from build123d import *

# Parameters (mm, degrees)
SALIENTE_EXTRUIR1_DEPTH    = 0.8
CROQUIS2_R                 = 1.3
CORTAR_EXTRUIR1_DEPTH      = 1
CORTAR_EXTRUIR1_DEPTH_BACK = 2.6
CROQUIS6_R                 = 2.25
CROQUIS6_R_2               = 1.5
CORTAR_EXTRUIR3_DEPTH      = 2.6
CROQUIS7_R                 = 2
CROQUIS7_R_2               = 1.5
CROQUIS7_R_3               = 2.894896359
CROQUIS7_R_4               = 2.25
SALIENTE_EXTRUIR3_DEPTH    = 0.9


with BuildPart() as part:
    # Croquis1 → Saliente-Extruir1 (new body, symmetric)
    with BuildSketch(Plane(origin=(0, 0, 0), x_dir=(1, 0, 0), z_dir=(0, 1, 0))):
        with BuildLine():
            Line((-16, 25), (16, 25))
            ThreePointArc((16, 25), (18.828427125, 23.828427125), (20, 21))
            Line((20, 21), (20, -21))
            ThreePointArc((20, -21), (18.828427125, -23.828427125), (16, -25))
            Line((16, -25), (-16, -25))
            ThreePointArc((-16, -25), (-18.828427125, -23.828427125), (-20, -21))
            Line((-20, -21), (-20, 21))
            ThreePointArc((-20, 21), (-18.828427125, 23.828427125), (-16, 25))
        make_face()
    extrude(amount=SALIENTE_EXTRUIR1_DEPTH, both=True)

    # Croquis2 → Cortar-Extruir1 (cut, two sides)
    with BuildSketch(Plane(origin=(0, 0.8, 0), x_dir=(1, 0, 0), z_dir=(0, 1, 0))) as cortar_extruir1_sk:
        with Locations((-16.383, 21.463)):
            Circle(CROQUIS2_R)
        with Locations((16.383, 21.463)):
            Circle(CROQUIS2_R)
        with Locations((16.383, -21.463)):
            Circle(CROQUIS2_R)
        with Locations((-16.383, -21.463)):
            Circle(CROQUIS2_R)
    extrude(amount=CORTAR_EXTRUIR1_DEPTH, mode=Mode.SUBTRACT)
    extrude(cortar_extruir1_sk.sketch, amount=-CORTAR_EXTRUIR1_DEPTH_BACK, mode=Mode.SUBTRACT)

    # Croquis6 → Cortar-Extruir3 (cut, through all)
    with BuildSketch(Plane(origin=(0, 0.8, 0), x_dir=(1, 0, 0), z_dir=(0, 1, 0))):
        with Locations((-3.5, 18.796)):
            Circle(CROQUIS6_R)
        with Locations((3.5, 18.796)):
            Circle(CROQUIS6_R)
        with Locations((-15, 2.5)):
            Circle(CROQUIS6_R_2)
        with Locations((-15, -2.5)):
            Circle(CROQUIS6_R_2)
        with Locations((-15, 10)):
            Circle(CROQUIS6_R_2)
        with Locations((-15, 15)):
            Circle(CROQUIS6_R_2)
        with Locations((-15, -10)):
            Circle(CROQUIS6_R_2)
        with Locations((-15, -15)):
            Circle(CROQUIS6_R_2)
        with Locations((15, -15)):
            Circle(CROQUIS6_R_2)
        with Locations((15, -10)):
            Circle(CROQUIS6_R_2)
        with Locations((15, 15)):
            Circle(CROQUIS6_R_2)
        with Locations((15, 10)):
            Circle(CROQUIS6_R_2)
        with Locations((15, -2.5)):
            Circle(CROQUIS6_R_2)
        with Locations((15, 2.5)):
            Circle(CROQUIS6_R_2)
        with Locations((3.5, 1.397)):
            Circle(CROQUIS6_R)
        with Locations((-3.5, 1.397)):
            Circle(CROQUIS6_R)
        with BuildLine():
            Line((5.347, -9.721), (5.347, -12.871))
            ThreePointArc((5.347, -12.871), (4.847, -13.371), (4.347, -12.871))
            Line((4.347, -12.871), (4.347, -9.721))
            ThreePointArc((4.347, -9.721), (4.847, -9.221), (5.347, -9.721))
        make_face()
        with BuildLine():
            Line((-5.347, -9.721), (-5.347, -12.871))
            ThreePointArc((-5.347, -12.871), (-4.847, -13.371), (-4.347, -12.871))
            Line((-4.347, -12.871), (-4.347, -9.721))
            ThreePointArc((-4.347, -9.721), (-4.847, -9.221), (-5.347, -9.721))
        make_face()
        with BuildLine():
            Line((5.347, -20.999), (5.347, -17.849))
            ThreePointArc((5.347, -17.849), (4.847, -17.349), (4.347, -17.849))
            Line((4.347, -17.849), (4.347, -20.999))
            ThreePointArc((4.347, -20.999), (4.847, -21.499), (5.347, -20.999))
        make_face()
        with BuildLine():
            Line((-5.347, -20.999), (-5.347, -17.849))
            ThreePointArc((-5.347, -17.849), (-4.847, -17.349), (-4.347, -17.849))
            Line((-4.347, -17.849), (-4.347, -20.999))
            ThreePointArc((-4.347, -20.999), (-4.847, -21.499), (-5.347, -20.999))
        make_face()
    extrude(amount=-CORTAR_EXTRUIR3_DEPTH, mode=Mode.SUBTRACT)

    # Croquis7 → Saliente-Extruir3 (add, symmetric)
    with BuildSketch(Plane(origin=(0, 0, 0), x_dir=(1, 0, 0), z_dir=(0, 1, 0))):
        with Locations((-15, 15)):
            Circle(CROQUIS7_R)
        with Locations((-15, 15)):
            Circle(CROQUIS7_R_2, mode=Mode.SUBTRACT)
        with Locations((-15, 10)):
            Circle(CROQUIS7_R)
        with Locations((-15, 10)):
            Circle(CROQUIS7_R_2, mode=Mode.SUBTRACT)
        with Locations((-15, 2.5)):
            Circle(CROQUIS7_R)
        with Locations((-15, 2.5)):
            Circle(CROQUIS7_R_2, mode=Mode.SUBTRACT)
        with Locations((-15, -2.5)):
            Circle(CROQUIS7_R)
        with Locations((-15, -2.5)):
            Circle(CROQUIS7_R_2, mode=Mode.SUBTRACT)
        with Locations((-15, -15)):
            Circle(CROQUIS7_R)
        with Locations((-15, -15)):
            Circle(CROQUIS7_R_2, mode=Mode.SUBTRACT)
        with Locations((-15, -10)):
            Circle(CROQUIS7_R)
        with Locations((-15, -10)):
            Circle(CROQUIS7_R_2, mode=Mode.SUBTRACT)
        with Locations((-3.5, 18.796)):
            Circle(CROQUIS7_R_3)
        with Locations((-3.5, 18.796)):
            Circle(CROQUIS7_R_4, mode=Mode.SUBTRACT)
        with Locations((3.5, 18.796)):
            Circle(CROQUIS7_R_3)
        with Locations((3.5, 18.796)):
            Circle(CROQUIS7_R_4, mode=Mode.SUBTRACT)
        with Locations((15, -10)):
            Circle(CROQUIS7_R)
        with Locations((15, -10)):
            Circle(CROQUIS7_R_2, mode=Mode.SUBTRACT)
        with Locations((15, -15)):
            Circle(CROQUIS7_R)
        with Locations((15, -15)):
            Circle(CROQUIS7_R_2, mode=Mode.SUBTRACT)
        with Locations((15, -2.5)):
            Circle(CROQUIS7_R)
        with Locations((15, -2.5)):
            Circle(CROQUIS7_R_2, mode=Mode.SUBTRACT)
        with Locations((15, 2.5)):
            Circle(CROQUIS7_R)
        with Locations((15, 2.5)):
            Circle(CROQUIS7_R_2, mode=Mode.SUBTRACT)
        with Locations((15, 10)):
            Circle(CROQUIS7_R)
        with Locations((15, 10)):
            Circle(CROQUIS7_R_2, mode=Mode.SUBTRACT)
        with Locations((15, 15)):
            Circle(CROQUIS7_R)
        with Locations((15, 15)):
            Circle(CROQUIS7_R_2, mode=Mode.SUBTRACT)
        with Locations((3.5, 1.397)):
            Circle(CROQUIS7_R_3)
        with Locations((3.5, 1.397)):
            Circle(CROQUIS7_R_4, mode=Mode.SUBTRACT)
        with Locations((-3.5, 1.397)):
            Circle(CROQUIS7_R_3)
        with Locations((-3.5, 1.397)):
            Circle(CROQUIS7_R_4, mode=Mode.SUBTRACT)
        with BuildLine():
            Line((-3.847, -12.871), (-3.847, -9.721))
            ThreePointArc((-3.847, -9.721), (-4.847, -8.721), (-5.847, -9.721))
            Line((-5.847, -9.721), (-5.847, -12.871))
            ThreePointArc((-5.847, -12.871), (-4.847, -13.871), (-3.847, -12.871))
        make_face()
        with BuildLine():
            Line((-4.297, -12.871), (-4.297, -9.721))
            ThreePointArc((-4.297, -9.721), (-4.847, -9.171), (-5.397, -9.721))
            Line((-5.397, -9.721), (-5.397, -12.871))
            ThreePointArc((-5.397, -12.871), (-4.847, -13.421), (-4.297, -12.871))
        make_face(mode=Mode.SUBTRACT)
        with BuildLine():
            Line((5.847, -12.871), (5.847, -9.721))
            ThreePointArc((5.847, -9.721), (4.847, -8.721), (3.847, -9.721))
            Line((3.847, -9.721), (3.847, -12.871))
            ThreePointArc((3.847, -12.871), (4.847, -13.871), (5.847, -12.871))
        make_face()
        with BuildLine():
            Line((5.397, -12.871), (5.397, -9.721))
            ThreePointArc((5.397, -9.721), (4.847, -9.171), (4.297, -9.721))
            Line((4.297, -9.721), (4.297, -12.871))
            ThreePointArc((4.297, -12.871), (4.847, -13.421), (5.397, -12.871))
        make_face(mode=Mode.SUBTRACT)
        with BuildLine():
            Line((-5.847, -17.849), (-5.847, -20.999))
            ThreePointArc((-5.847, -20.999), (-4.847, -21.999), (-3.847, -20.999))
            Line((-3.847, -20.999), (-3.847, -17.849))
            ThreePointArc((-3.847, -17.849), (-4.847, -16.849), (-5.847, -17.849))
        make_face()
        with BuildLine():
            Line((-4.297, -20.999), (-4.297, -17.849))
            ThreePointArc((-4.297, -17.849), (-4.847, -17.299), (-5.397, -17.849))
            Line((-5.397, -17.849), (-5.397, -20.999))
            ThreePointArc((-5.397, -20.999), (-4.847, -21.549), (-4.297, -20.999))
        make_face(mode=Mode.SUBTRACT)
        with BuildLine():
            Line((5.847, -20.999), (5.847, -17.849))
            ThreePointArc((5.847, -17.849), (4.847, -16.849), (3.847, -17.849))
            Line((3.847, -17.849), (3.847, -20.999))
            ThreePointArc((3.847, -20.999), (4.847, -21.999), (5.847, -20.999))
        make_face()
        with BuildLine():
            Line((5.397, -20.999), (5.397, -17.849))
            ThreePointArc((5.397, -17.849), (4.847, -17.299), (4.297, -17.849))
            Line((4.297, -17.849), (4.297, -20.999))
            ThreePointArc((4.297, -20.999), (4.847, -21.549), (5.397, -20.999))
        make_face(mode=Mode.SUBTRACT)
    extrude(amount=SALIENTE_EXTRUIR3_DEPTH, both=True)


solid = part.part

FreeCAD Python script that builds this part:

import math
import FreeCAD as App
import Part
import Sketcher

V = App.Vector

doc = App.newDocument("Part")
body = doc.addObject("PartDesign::Body", "Body")

sketch1 = body.newObject("Sketcher::SketchObject", "Sketch")
sketch1.AttachmentSupport = (doc.getObject("XZ_Plane"), [""])
sketch1.MapMode = "FlatFace"
sketch1.addGeometry(Part.LineSegment(V(16, -25, 0), V(-16, -25, 0)), False)
sketch1.addGeometry(Part.ArcOfCircle(Part.Circle(V(-16, -21, 0), V(0, 0, 1), 4), math.radians(180), math.radians(270)), False)
sketch1.addGeometry(Part.LineSegment(V(-20, -21, 0), V(-20, 21, 0)), False)
sketch1.addGeometry(Part.ArcOfCircle(Part.Circle(V(-16, 21, 0), V(0, 0, 1), 4), math.radians(90), math.radians(180)), False)
sketch1.addGeometry(Part.LineSegment(V(-16, 25, 0), V(16, 25, 0)), False)
sketch1.addGeometry(Part.ArcOfCircle(Part.Circle(V(16, 21, 0), V(0, 0, 1), 4), math.radians(0), math.radians(90)), False)
sketch1.addGeometry(Part.LineSegment(V(20, 21, 0), V(20, -21, 0)), False)
sketch1.addGeometry(Part.ArcOfCircle(Part.Circle(V(16, -21, 0), V(0, 0, 1), 4), math.radians(-90), math.radians(0)), False)
sketch1.addConstraint(Sketcher.Constraint("Tangent", 0, 2, 1, 2))
sketch1.addConstraint(Sketcher.Constraint("Tangent", 1, 1, 2, 1))
sketch1.addConstraint(Sketcher.Constraint("Tangent", 2, 2, 3, 2))
sketch1.addConstraint(Sketcher.Constraint("Tangent", 3, 1, 4, 1))
sketch1.addConstraint(Sketcher.Constraint("Tangent", 4, 2, 5, 2))
sketch1.addConstraint(Sketcher.Constraint("Tangent", 5, 1, 6, 1))
sketch1.addConstraint(Sketcher.Constraint("Tangent", 6, 2, 7, 2))
sketch1.addConstraint(Sketcher.Constraint("Tangent", 7, 1, 0, 1))
sketch1.addConstraint(Sketcher.Constraint("Horizontal", 0))
sketch1.addConstraint(Sketcher.Constraint("Vertical", 2))
sketch1.addConstraint(Sketcher.Constraint("Horizontal", 4))
sketch1.addConstraint(Sketcher.Constraint("Vertical", 6))
sketch1.addConstraint(Sketcher.Constraint("Equal", 1, 3))
sketch1.addConstraint(Sketcher.Constraint("Equal", 3, 5))
sketch1.addConstraint(Sketcher.Constraint("Equal", 5, 7))
sketch1.addConstraint(Sketcher.Constraint("Symmetric", 1, 3, 5, 3, -1, 1))
sketch1.addConstraint(Sketcher.Constraint("Radius", 1, 4.0))
sketch1.addConstraint(Sketcher.Constraint("DistanceX", 0, 2, 0, 1, 32.0))
sketch1.addConstraint(Sketcher.Constraint("DistanceY", 2, 1, 2, 2, 42.0))
pad1 = body.newObject("PartDesign::Pad", "Pad")
pad1.Profile = sketch1
pad1.Length = 1.6
pad1.Midplane = True

sketch2 = body.newObject("Sketcher::SketchObject", "Sketch001")
sketch2.AttachmentSupport = (doc.getObject("XZ_Plane"), [""])
sketch2.MapMode = "FlatFace"
sketch2.AttachmentOffset = App.Placement(V(0, 0, -0.8), App.Rotation())
sketch2.addGeometry(Part.Circle(V(-16.383, -21.463, 0), V(0, 0, 1), 1.3), False)
sketch2.addGeometry(Part.Circle(V(16.383, -21.463, 0), V(0, 0, 1), 1.3), False)
sketch2.addGeometry(Part.Circle(V(16.383, 21.463, 0), V(0, 0, 1), 1.3), False)
sketch2.addGeometry(Part.Circle(V(-16.383, 21.463, 0), V(0, 0, 1), 1.3), False)
sketch2.addConstraint(Sketcher.Constraint("Equal", 0, 1))
sketch2.addConstraint(Sketcher.Constraint("Equal", 1, 2))
sketch2.addConstraint(Sketcher.Constraint("Equal", 2, 3))
sketch2.addConstraint(Sketcher.Constraint("Symmetric", 0, 3, 2, 3, -1, 1))
sketch2.addConstraint(Sketcher.Constraint("Symmetric", 1, 3, 3, 3, -1, 1))
sketch2.addConstraint(Sketcher.Constraint("Symmetric", 0, 3, 1, 3, -2))
sketch2.addConstraint(Sketcher.Constraint("Diameter", 0, 2.6))
sketch2.addConstraint(Sketcher.Constraint("DistanceX", 0, 3, -1, 1, 16.383))
sketch2.addConstraint(Sketcher.Constraint("DistanceY", 0, 3, -1, 1, 21.463))
pocket1 = body.newObject("PartDesign::Pocket", "Pocket")
pocket1.Profile = sketch2
pocket1.Type = "ThroughAll"
pocket1.Midplane = True

sketch3 = body.newObject("Sketcher::SketchObject", "Sketch002")
sketch3.AttachmentSupport = (doc.getObject("XZ_Plane"), [""])
sketch3.MapMode = "FlatFace"
sketch3.AttachmentOffset = App.Placement(V(0, 0, -0.8), App.Rotation())
sketch3.addGeometry(Part.Circle(V(-3.5, -18.796, 0), V(0, 0, 1), 2.25), False)
sketch3.addGeometry(Part.Circle(V(3.5, -18.796, 0), V(0, 0, 1), 2.25), False)
sketch3.addGeometry(Part.Circle(V(-15, -2.5, 0), V(0, 0, 1), 1.5), False)
sketch3.addGeometry(Part.Circle(V(-15, 2.5, 0), V(0, 0, 1), 1.5), False)
sketch3.addGeometry(Part.Circle(V(-15, -10, 0), V(0, 0, 1), 1.5), False)
sketch3.addGeometry(Part.Circle(V(-15, -15, 0), V(0, 0, 1), 1.5), False)
sketch3.addGeometry(Part.Circle(V(-15, 10, 0), V(0, 0, 1), 1.5), False)
sketch3.addGeometry(Part.Circle(V(-15, 15, 0), V(0, 0, 1), 1.5), False)
sketch3.addGeometry(Part.Circle(V(15, 15, 0), V(0, 0, 1), 1.5), False)
sketch3.addGeometry(Part.Circle(V(15, 10, 0), V(0, 0, 1), 1.5), False)
sketch3.addGeometry(Part.Circle(V(15, -15, 0), V(0, 0, 1), 1.5), False)
sketch3.addGeometry(Part.Circle(V(15, -10, 0), V(0, 0, 1), 1.5), False)
sketch3.addGeometry(Part.Circle(V(15, 2.5, 0), V(0, 0, 1), 1.5), False)
sketch3.addGeometry(Part.Circle(V(15, -2.5, 0), V(0, 0, 1), 1.5), False)
sketch3.addGeometry(Part.Circle(V(3.5, -1.397, 0), V(0, 0, 1), 2.25), False)
sketch3.addGeometry(Part.Circle(V(-3.5, -1.397, 0), V(0, 0, 1), 2.25), False)
sketch3.addGeometry(Part.LineSegment(V(5.347, 12.871, 0), V(5.347, 9.721, 0)), False)
sketch3.addGeometry(Part.ArcOfCircle(Part.Circle(V(4.847, 9.721, 0), V(0, 0, 1), 0.5), math.radians(180), math.radians(360)), False)
sketch3.addGeometry(Part.LineSegment(V(4.347, 9.721, 0), V(4.347, 12.871, 0)), False)
sketch3.addGeometry(Part.ArcOfCircle(Part.Circle(V(4.847, 12.871, 0), V(0, 0, 1), 0.5), math.radians(0), math.radians(180)), False)
sketch3.addGeometry(Part.LineSegment(V(-5.347, 9.721, 0), V(-5.347, 12.871, 0)), False)
sketch3.addGeometry(Part.ArcOfCircle(Part.Circle(V(-4.847, 12.871, 0), V(0, 0, 1), 0.5), math.radians(0), math.radians(180)), False)
sketch3.addGeometry(Part.LineSegment(V(-4.347, 12.871, 0), V(-4.347, 9.721, 0)), False)
sketch3.addGeometry(Part.ArcOfCircle(Part.Circle(V(-4.847, 9.721, 0), V(0, 0, 1), 0.5), math.radians(180), math.radians(360)), False)
sketch3.addGeometry(Part.LineSegment(V(5.347, 20.999, 0), V(5.347, 17.849, 0)), False)
sketch3.addGeometry(Part.ArcOfCircle(Part.Circle(V(4.847, 17.849, 0), V(0, 0, 1), 0.5), math.radians(180), math.radians(360)), False)
sketch3.addGeometry(Part.LineSegment(V(4.347, 17.849, 0), V(4.347, 20.999, 0)), False)
sketch3.addGeometry(Part.ArcOfCircle(Part.Circle(V(4.847, 20.999, 0), V(0, 0, 1), 0.5), math.radians(0), math.radians(180)), False)
sketch3.addGeometry(Part.LineSegment(V(-5.347, 17.849, 0), V(-5.347, 20.999, 0)), False)
sketch3.addGeometry(Part.ArcOfCircle(Part.Circle(V(-4.847, 20.999, 0), V(0, 0, 1), 0.5), math.radians(0), math.radians(180)), False)
sketch3.addGeometry(Part.LineSegment(V(-4.347, 20.999, 0), V(-4.347, 17.849, 0)), False)
sketch3.addGeometry(Part.ArcOfCircle(Part.Circle(V(-4.847, 17.849, 0), V(0, 0, 1), 0.5), math.radians(180), math.radians(360)), False)
sketch3.addConstraint(Sketcher.Constraint("Tangent", 16, 2, 17, 2))
sketch3.addConstraint(Sketcher.Constraint("Tangent", 17, 1, 18, 1))
sketch3.addConstraint(Sketcher.Constraint("Tangent", 18, 2, 19, 2))
sketch3.addConstraint(Sketcher.Constraint("Tangent", 19, 1, 16, 1))
sketch3.addConstraint(Sketcher.Constraint("Tangent", 20, 2, 21, 2))
sketch3.addConstraint(Sketcher.Constraint("Tangent", 21, 1, 22, 1))
sketch3.addConstraint(Sketcher.Constraint("Tangent", 22, 2, 23, 2))
sketch3.addConstraint(Sketcher.Constraint("Tangent", 23, 1, 20, 1))
sketch3.addConstraint(Sketcher.Constraint("Tangent", 24, 2, 25, 2))
sketch3.addConstraint(Sketcher.Constraint("Tangent", 25, 1, 26, 1))
sketch3.addConstraint(Sketcher.Constraint("Tangent", 26, 2, 27, 2))
sketch3.addConstraint(Sketcher.Constraint("Tangent", 27, 1, 24, 1))
sketch3.addConstraint(Sketcher.Constraint("Tangent", 28, 2, 29, 2))
sketch3.addConstraint(Sketcher.Constraint("Tangent", 29, 1, 30, 1))
sketch3.addConstraint(Sketcher.Constraint("Tangent", 30, 2, 31, 2))
sketch3.addConstraint(Sketcher.Constraint("Tangent", 31, 1, 28, 1))
sketch3.addConstraint(Sketcher.Constraint("Vertical", 16))
sketch3.addConstraint(Sketcher.Constraint("Vertical", 18))
sketch3.addConstraint(Sketcher.Constraint("Vertical", 20))
sketch3.addConstraint(Sketcher.Constraint("Vertical", 22))
sketch3.addConstraint(Sketcher.Constraint("Vertical", 24))
sketch3.addConstraint(Sketcher.Constraint("Vertical", 26))
sketch3.addConstraint(Sketcher.Constraint("Vertical", 28))
sketch3.addConstraint(Sketcher.Constraint("Vertical", 30))
sketch3.addConstraint(Sketcher.Constraint("Equal", 0, 1))
sketch3.addConstraint(Sketcher.Constraint("Equal", 2, 3))
sketch3.addConstraint(Sketcher.Constraint("Equal", 3, 4))
sketch3.addConstraint(Sketcher.Constraint("Equal", 4, 5))
sketch3.addConstraint(Sketcher.Constraint("Equal", 5, 6))
sketch3.addConstraint(Sketcher.Constraint("Equal", 6, 7))
sketch3.addConstraint(Sketcher.Constraint("Equal", 7, 8))
sketch3.addConstraint(Sketcher.Constraint("Equal", 8, 9))
sketch3.addConstraint(Sketcher.Constraint("Equal", 9, 10))
sketch3.addConstraint(Sketcher.Constraint("Equal", 10, 11))
sketch3.addConstraint(Sketcher.Constraint("Equal", 11, 12))
sketch3.addConstraint(Sketcher.Constraint("Equal", 12, 13))
sketch3.addConstraint(Sketcher.Constraint("Equal", 1, 14))
sketch3.addConstraint(Sketcher.Constraint("Equal", 14, 15))
sketch3.addConstraint(Sketcher.Constraint("Equal", 19, 21))
sketch3.addConstraint(Sketcher.Constraint("Equal", 23, 25))
sketch3.addConstraint(Sketcher.Constraint("Equal", 27, 29))
sketch3.addConstraint(Sketcher.Constraint("Symmetric", 5, 3, 8, 3, -1, 1))
sketch3.addConstraint(Sketcher.Constraint("Symmetric", 4, 3, 9, 3, -1, 1))
sketch3.addConstraint(Sketcher.Constraint("Symmetric", 7, 3, 10, 3, -1, 1))
sketch3.addConstraint(Sketcher.Constraint("Symmetric", 6, 3, 11, 3, -1, 1))
sketch3.addConstraint(Sketcher.Constraint("Symmetric", 2, 3, 12, 3, -1, 1))
sketch3.addConstraint(Sketcher.Constraint("Symmetric", 3, 3, 13, 3, -1, 1))
sketch3.addConstraint(Sketcher.Constraint("Symmetric", 0, 3, 1, 3, -2))
sketch3.addConstraint(Sketcher.Constraint("Symmetric", 7, 3, 8, 3, -2))
sketch3.addConstraint(Sketcher.Constraint("Symmetric", 6, 3, 9, 3, -2))
sketch3.addConstraint(Sketcher.Constraint("Symmetric", 3, 3, 12, 3, -2))
sketch3.addConstraint(Sketcher.Constraint("Symmetric", 14, 3, 15, 3, -2))
sketch3.addConstraint(Sketcher.Constraint("Symmetric", 19, 3, 21, 3, -2))
sketch3.addConstraint(Sketcher.Constraint("Symmetric", 27, 3, 29, 3, -2))
sketch3.addConstraint(Sketcher.Constraint("Horizontal", 17, 3, 23, 3))
sketch3.addConstraint(Sketcher.Constraint("Horizontal", 25, 3, 31, 3))
sketch3.addConstraint(Sketcher.Constraint("Vertical", 3, 3, 4, 3))
sketch3.addConstraint(Sketcher.Constraint("Vertical", 4, 3, 5, 3))
sketch3.addConstraint(Sketcher.Constraint("Vertical", 1, 3, 14, 3))
sketch3.addConstraint(Sketcher.Constraint("Vertical", 19, 3, 25, 3))
sketch3.addConstraint(Sketcher.Constraint("Equal", 22, 24))
sketch3.addConstraint(Sketcher.Constraint("Diameter", 2, 3.0))
sketch3.addConstraint(Sketcher.Constraint("Diameter", 0, 4.5))
sketch3.addConstraint(Sketcher.Constraint("Radius", 17, 0.5))
sketch3.addConstraint(Sketcher.Constraint("DistanceX", 2, 3, -1, 1, 15.0))
sketch3.addConstraint(Sketcher.Constraint("DistanceY", 4, 3, -1, 1, 10.0))
sketch3.addConstraint(Sketcher.Constraint("DistanceY", 5, 3, -1, 1, 15.0))
sketch3.addConstraint(Sketcher.Constraint("DistanceX", 0, 3, 1, 3, 7.0))
sketch3.addConstraint(Sketcher.Constraint("DistanceY", 2, 3, 3, 3, 5.0))
sketch3.addConstraint(Sketcher.Constraint("DistanceY", 16, 2, 16, 1, 3.15))
sketch3.addConstraint(Sketcher.Constraint("DistanceY", 0, 3, -1, 1, 18.796))
sketch3.addConstraint(Sketcher.Constraint("DistanceY", 14, 3, -1, 1, 1.397))
sketch3.addConstraint(Sketcher.Constraint("DistanceX", -1, 1, 17, 3, 4.847))
sketch3.addConstraint(Sketcher.Constraint("DistanceY", -1, 1, 17, 3, 9.721))
sketch3.addConstraint(Sketcher.Constraint("DistanceY", -1, 1, 25, 3, 17.849))
pocket2 = body.newObject("PartDesign::Pocket", "Pocket001")
pocket2.Profile = sketch3
pocket2.Type = "ThroughAll"
pocket2.Reversed = True

sketch4 = body.newObject("Sketcher::SketchObject", "Sketch003")
sketch4.AttachmentSupport = (doc.getObject("XZ_Plane"), [""])
sketch4.MapMode = "FlatFace"
sketch4.addGeometry(Part.Circle(V(-15, -15, 0), V(0, 0, 1), 2), False)
sketch4.addGeometry(Part.Circle(V(-15, -15, 0), V(0, 0, 1), 1.5), False)
sketch4.addGeometry(Part.Circle(V(-15, -10, 0), V(0, 0, 1), 2), False)
sketch4.addGeometry(Part.Circle(V(-15, -10, 0), V(0, 0, 1), 1.5), False)
sketch4.addGeometry(Part.Circle(V(-15, -2.5, 0), V(0, 0, 1), 2), False)
sketch4.addGeometry(Part.Circle(V(-15, -2.5, 0), V(0, 0, 1), 1.5), False)
sketch4.addGeometry(Part.Circle(V(-15, 2.5, 0), V(0, 0, 1), 2), False)
sketch4.addGeometry(Part.Circle(V(-15, 2.5, 0), V(0, 0, 1), 1.5), False)
sketch4.addGeometry(Part.Circle(V(-15, 15, 0), V(0, 0, 1), 2), False)
sketch4.addGeometry(Part.Circle(V(-15, 15, 0), V(0, 0, 1), 1.5), False)
sketch4.addGeometry(Part.Circle(V(-15, 10, 0), V(0, 0, 1), 2), False)
sketch4.addGeometry(Part.Circle(V(-15, 10, 0), V(0, 0, 1), 1.5), False)
sketch4.addGeometry(Part.Circle(V(-3.5, -18.796, 0), V(0, 0, 1), 2.894896), False)
sketch4.addGeometry(Part.Circle(V(-3.5, -18.796, 0), V(0, 0, 1), 2.25), False)
sketch4.addGeometry(Part.Circle(V(3.5, -18.796, 0), V(0, 0, 1), 2.894896), False)
sketch4.addGeometry(Part.Circle(V(3.5, -18.796, 0), V(0, 0, 1), 2.25), False)
sketch4.addGeometry(Part.Circle(V(15, 10, 0), V(0, 0, 1), 2), False)
sketch4.addGeometry(Part.Circle(V(15, 10, 0), V(0, 0, 1), 1.5), False)
sketch4.addGeometry(Part.Circle(V(15, 15, 0), V(0, 0, 1), 2), False)
sketch4.addGeometry(Part.Circle(V(15, 15, 0), V(0, 0, 1), 1.5), False)
sketch4.addGeometry(Part.Circle(V(15, 2.5, 0), V(0, 0, 1), 2), False)
sketch4.addGeometry(Part.Circle(V(15, 2.5, 0), V(0, 0, 1), 1.5), False)
sketch4.addGeometry(Part.Circle(V(15, -2.5, 0), V(0, 0, 1), 2), False)
sketch4.addGeometry(Part.Circle(V(15, -2.5, 0), V(0, 0, 1), 1.5), False)
sketch4.addGeometry(Part.Circle(V(15, -10, 0), V(0, 0, 1), 2), False)
sketch4.addGeometry(Part.Circle(V(15, -10, 0), V(0, 0, 1), 1.5), False)
sketch4.addGeometry(Part.Circle(V(15, -15, 0), V(0, 0, 1), 2), False)
sketch4.addGeometry(Part.Circle(V(15, -15, 0), V(0, 0, 1), 1.5), False)
sketch4.addGeometry(Part.Circle(V(3.5, -1.397, 0), V(0, 0, 1), 2.894896), False)
sketch4.addGeometry(Part.Circle(V(3.5, -1.397, 0), V(0, 0, 1), 2.25), False)
sketch4.addGeometry(Part.Circle(V(-3.5, -1.397, 0), V(0, 0, 1), 2.894896), False)
sketch4.addGeometry(Part.Circle(V(-3.5, -1.397, 0), V(0, 0, 1), 2.25), False)
sketch4.addGeometry(Part.LineSegment(V(-3.847, 12.871, 0), V(-3.847, 9.721, 0)), False)
sketch4.addGeometry(Part.ArcOfCircle(Part.Circle(V(-4.847, 9.721, 0), V(0, 0, 1), 1), math.radians(180), math.radians(360)), False)
sketch4.addGeometry(Part.LineSegment(V(-5.847, 9.721, 0), V(-5.847, 12.871, 0)), False)
sketch4.addGeometry(Part.ArcOfCircle(Part.Circle(V(-4.847, 12.871, 0), V(0, 0, 1), 1), math.radians(0), math.radians(180)), False)
sketch4.addGeometry(Part.LineSegment(V(-4.297, 9.721, 0), V(-4.297, 12.871, 0)), False)
sketch4.addGeometry(Part.ArcOfCircle(Part.Circle(V(-4.847, 12.871, 0), V(0, 0, 1), 0.55), math.radians(0), math.radians(180)), False)
sketch4.addGeometry(Part.LineSegment(V(-5.397, 12.871, 0), V(-5.397, 9.721, 0)), False)
sketch4.addGeometry(Part.ArcOfCircle(Part.Circle(V(-4.847, 9.721, 0), V(0, 0, 1), 0.55), math.radians(180), math.radians(360)), False)
sketch4.addGeometry(Part.LineSegment(V(5.847, 12.871, 0), V(5.847, 9.721, 0)), False)
sketch4.addGeometry(Part.ArcOfCircle(Part.Circle(V(4.847, 9.721, 0), V(0, 0, 1), 1), math.radians(180), math.radians(360)), False)
sketch4.addGeometry(Part.LineSegment(V(3.847, 9.721, 0), V(3.847, 12.871, 0)), False)
sketch4.addGeometry(Part.ArcOfCircle(Part.Circle(V(4.847, 12.871, 0), V(0, 0, 1), 1), math.radians(0), math.radians(180)), False)
sketch4.addGeometry(Part.LineSegment(V(5.397, 9.721, 0), V(5.397, 12.871, 0)), False)
sketch4.addGeometry(Part.ArcOfCircle(Part.Circle(V(4.847, 12.871, 0), V(0, 0, 1), 0.55), math.radians(0), math.radians(180)), False)
sketch4.addGeometry(Part.LineSegment(V(4.297, 12.871, 0), V(4.297, 9.721, 0)), False)
sketch4.addGeometry(Part.ArcOfCircle(Part.Circle(V(4.847, 9.721, 0), V(0, 0, 1), 0.55), math.radians(180), math.radians(360)), False)
sketch4.addGeometry(Part.LineSegment(V(-5.847, 17.849, 0), V(-5.847, 20.999, 0)), False)
sketch4.addGeometry(Part.ArcOfCircle(Part.Circle(V(-4.847, 20.999, 0), V(0, 0, 1), 1), math.radians(0), math.radians(180)), False)
sketch4.addGeometry(Part.LineSegment(V(-3.847, 20.999, 0), V(-3.847, 17.849, 0)), False)
sketch4.addGeometry(Part.ArcOfCircle(Part.Circle(V(-4.847, 17.849, 0), V(0, 0, 1), 1), math.radians(180), math.radians(360)), False)
sketch4.addGeometry(Part.LineSegment(V(-4.297, 17.849, 0), V(-4.297, 20.999, 0)), False)
sketch4.addGeometry(Part.ArcOfCircle(Part.Circle(V(-4.847, 20.999, 0), V(0, 0, 1), 0.55), math.radians(0), math.radians(180)), False)
sketch4.addGeometry(Part.LineSegment(V(-5.397, 20.999, 0), V(-5.397, 17.849, 0)), False)
sketch4.addGeometry(Part.ArcOfCircle(Part.Circle(V(-4.847, 17.849, 0), V(0, 0, 1), 0.55), math.radians(180), math.radians(360)), False)
sketch4.addGeometry(Part.LineSegment(V(5.847, 20.999, 0), V(5.847, 17.849, 0)), False)
sketch4.addGeometry(Part.ArcOfCircle(Part.Circle(V(4.847, 17.849, 0), V(0, 0, 1), 1), math.radians(180), math.radians(360)), False)
sketch4.addGeometry(Part.LineSegment(V(3.847, 17.849, 0), V(3.847, 20.999, 0)), False)
sketch4.addGeometry(Part.ArcOfCircle(Part.Circle(V(4.847, 20.999, 0), V(0, 0, 1), 1), math.radians(0), math.radians(180)), False)
sketch4.addGeometry(Part.LineSegment(V(5.397, 17.849, 0), V(5.397, 20.999, 0)), False)
sketch4.addGeometry(Part.ArcOfCircle(Part.Circle(V(4.847, 20.999, 0), V(0, 0, 1), 0.55), math.radians(0), math.radians(180)), False)
sketch4.addGeometry(Part.LineSegment(V(4.297, 20.999, 0), V(4.297, 17.849, 0)), False)
sketch4.addGeometry(Part.ArcOfCircle(Part.Circle(V(4.847, 17.849, 0), V(0, 0, 1), 0.55), math.radians(180), math.radians(360)), False)
sketch4.addConstraint(Sketcher.Constraint("Tangent", 32, 2, 33, 2))
sketch4.addConstraint(Sketcher.Constraint("Tangent", 33, 1, 34, 1))
sketch4.addConstraint(Sketcher.Constraint("Tangent", 34, 2, 35, 2))
sketch4.addConstraint(Sketcher.Constraint("Tangent", 35, 1, 32, 1))
sketch4.addConstraint(Sketcher.Constraint("Tangent", 36, 2, 37, 1))
sketch4.addConstraint(Sketcher.Constraint("Tangent", 37, 2, 38, 1))
sketch4.addConstraint(Sketcher.Constraint("Tangent", 38, 2, 39, 1))
sketch4.addConstraint(Sketcher.Constraint("Tangent", 39, 2, 36, 1))
sketch4.addConstraint(Sketcher.Constraint("Tangent", 40, 2, 41, 2))
sketch4.addConstraint(Sketcher.Constraint("Tangent", 41, 1, 42, 1))
sketch4.addConstraint(Sketcher.Constraint("Tangent", 42, 2, 43, 2))
sketch4.addConstraint(Sketcher.Constraint("Tangent", 43, 1, 40, 1))
sketch4.addConstraint(Sketcher.Constraint("Tangent", 44, 2, 45, 1))
sketch4.addConstraint(Sketcher.Constraint("Tangent", 45, 2, 46, 1))
sketch4.addConstraint(Sketcher.Constraint("Tangent", 46, 2, 47, 1))
sketch4.addConstraint(Sketcher.Constraint("Tangent", 47, 2, 44, 1))
sketch4.addConstraint(Sketcher.Constraint("Tangent", 48, 2, 49, 2))
sketch4.addConstraint(Sketcher.Constraint("Tangent", 49, 1, 50, 1))
sketch4.addConstraint(Sketcher.Constraint("Tangent", 50, 2, 51, 2))
sketch4.addConstraint(Sketcher.Constraint("Tangent", 51, 1, 48, 1))
sketch4.addConstraint(Sketcher.Constraint("Tangent", 52, 2, 53, 1))
sketch4.addConstraint(Sketcher.Constraint("Tangent", 53, 2, 54, 1))
sketch4.addConstraint(Sketcher.Constraint("Tangent", 54, 2, 55, 1))
sketch4.addConstraint(Sketcher.Constraint("Tangent", 55, 2, 52, 1))
sketch4.addConstraint(Sketcher.Constraint("Tangent", 56, 2, 57, 2))
sketch4.addConstraint(Sketcher.Constraint("Tangent", 57, 1, 58, 1))
sketch4.addConstraint(Sketcher.Constraint("Tangent", 58, 2, 59, 2))
sketch4.addConstraint(Sketcher.Constraint("Tangent", 59, 1, 56, 1))
sketch4.addConstraint(Sketcher.Constraint("Tangent", 60, 2, 61, 1))
sketch4.addConstraint(Sketcher.Constraint("Tangent", 61, 2, 62, 1))
sketch4.addConstraint(Sketcher.Constraint("Tangent", 62, 2, 63, 1))
sketch4.addConstraint(Sketcher.Constraint("Tangent", 63, 2, 60, 1))
sketch4.addConstraint(Sketcher.Constraint("Vertical", 32))
sketch4.addConstraint(Sketcher.Constraint("Vertical", 34))
sketch4.addConstraint(Sketcher.Constraint("Vertical", 36))
sketch4.addConstraint(Sketcher.Constraint("Vertical", 38))
sketch4.addConstraint(Sketcher.Constraint("Vertical", 40))
sketch4.addConstraint(Sketcher.Constraint("Vertical", 42))
sketch4.addConstraint(Sketcher.Constraint("Vertical", 44))
sketch4.addConstraint(Sketcher.Constraint("Vertical", 46))
sketch4.addConstraint(Sketcher.Constraint("Vertical", 48))
sketch4.addConstraint(Sketcher.Constraint("Vertical", 50))
sketch4.addConstraint(Sketcher.Constraint("Vertical", 52))
sketch4.addConstraint(Sketcher.Constraint("Vertical", 54))
sketch4.addConstraint(Sketcher.Constraint("Vertical", 56))
sketch4.addConstraint(Sketcher.Constraint("Vertical", 58))
sketch4.addConstraint(Sketcher.Constraint("Vertical", 60))
sketch4.addConstraint(Sketcher.Constraint("Vertical", 62))
sketch4.addConstraint(Sketcher.Constraint("Coincident", 1, 3, 0, 3))
sketch4.addConstraint(Sketcher.Constraint("Coincident", 3, 3, 2, 3))
sketch4.addConstraint(Sketcher.Constraint("Coincident", 5, 3, 4, 3))
sketch4.addConstraint(Sketcher.Constraint("Coincident", 7, 3, 6, 3))
sketch4.addConstraint(Sketcher.Constraint("Coincident", 9, 3, 8, 3))
sketch4.addConstraint(Sketcher.Constraint("Coincident", 11, 3, 10, 3))
sketch4.addConstraint(Sketcher.Constraint("Coincident", 13, 3, 12, 3))
sketch4.addConstraint(Sketcher.Constraint("Coincident", 15, 3, 14, 3))
sketch4.addConstraint(Sketcher.Constraint("Coincident", 17, 3, 16, 3))
sketch4.addConstraint(Sketcher.Constraint("Coincident", 19, 3, 18, 3))
sketch4.addConstraint(Sketcher.Constraint("Coincident", 21, 3, 20, 3))
sketch4.addConstraint(Sketcher.Constraint("Coincident", 23, 3, 22, 3))
sketch4.addConstraint(Sketcher.Constraint("Coincident", 25, 3, 24, 3))
sketch4.addConstraint(Sketcher.Constraint("Coincident", 27, 3, 26, 3))
sketch4.addConstraint(Sketcher.Constraint("Coincident", 29, 3, 28, 3))
sketch4.addConstraint(Sketcher.Constraint("Coincident", 31, 3, 30, 3))
sketch4.addConstraint(Sketcher.Constraint("Coincident", 37, 3, 35, 3))
sketch4.addConstraint(Sketcher.Constraint("Coincident", 45, 3, 43, 3))
sketch4.addConstraint(Sketcher.Constraint("Coincident", 53, 3, 49, 3))
sketch4.addConstraint(Sketcher.Constraint("Coincident", 61, 3, 59, 3))
sketch4.addConstraint(Sketcher.Constraint("Equal", 0, 2))
sketch4.addConstraint(Sketcher.Constraint("Equal", 1, 3))
sketch4.addConstraint(Sketcher.Constraint("Equal", 2, 4))
sketch4.addConstraint(Sketcher.Constraint("Equal", 3, 5))
sketch4.addConstraint(Sketcher.Constraint("Equal", 4, 6))
sketch4.addConstraint(Sketcher.Constraint("Equal", 5, 7))
sketch4.addConstraint(Sketcher.Constraint("Equal", 6, 8))
sketch4.addConstraint(Sketcher.Constraint("Equal", 7, 9))
sketch4.addConstraint(Sketcher.Constraint("Equal", 8, 10))
sketch4.addConstraint(Sketcher.Constraint("Equal", 9, 11))
sketch4.addConstraint(Sketcher.Constraint("Equal", 12, 14))
sketch4.addConstraint(Sketcher.Constraint("Equal", 13, 15))
sketch4.addConstraint(Sketcher.Constraint("Equal", 10, 16))
sketch4.addConstraint(Sketcher.Constraint("Equal", 11, 17))
sketch4.addConstraint(Sketcher.Constraint("Equal", 16, 18))
sketch4.addConstraint(Sketcher.Constraint("Equal", 17, 19))
sketch4.addConstraint(Sketcher.Constraint("Equal", 18, 20))
sketch4.addConstraint(Sketcher.Constraint("Equal", 19, 21))
sketch4.addConstraint(Sketcher.Constraint("Equal", 20, 22))
sketch4.addConstraint(Sketcher.Constraint("Equal", 21, 23))
sketch4.addConstraint(Sketcher.Constraint("Equal", 22, 24))
sketch4.addConstraint(Sketcher.Constraint("Equal", 23, 25))
sketch4.addConstraint(Sketcher.Constraint("Equal", 24, 26))
sketch4.addConstraint(Sketcher.Constraint("Equal", 25, 27))
sketch4.addConstraint(Sketcher.Constraint("Equal", 14, 28))
sketch4.addConstraint(Sketcher.Constraint("Equal", 15, 29))
sketch4.addConstraint(Sketcher.Constraint("Equal", 28, 30))
sketch4.addConstraint(Sketcher.Constraint("Equal", 29, 31))
sketch4.addConstraint(Sketcher.Constraint("Equal", 35, 41))
sketch4.addConstraint(Sketcher.Constraint("Equal", 39, 45))
sketch4.addConstraint(Sketcher.Constraint("Equal", 43, 49))
sketch4.addConstraint(Sketcher.Constraint("Equal", 47, 53))
sketch4.addConstraint(Sketcher.Constraint("Equal", 51, 57))
sketch4.addConstraint(Sketcher.Constraint("Equal", 55, 61))
sketch4.addConstraint(Sketcher.Constraint("Symmetric", 2, 3, 16, 3, -1, 1))
sketch4.addConstraint(Sketcher.Constraint("Symmetric", 0, 3, 18, 3, -1, 1))
sketch4.addConstraint(Sketcher.Constraint("Symmetric", 4, 3, 20, 3, -1, 1))
sketch4.addConstraint(Sketcher.Constraint("Symmetric", 6, 3, 22, 3, -1, 1))
sketch4.addConstraint(Sketcher.Constraint("Symmetric", 10, 3, 24, 3, -1, 1))
sketch4.addConstraint(Sketcher.Constraint("Symmetric", 8, 3, 26, 3, -1, 1))
sketch4.addConstraint(Sketcher.Constraint("Symmetric", 12, 3, 14, 3, -2))
sketch4.addConstraint(Sketcher.Constraint("Symmetric", 10, 3, 16, 3, -2))
sketch4.addConstraint(Sketcher.Constraint("Symmetric", 8, 3, 18, 3, -2))
sketch4.addConstraint(Sketcher.Constraint("Symmetric", 6, 3, 20, 3, -2))
sketch4.addConstraint(Sketcher.Constraint("Symmetric", 28, 3, 30, 3, -2))
sketch4.addConstraint(Sketcher.Constraint("Symmetric", 33, 3, 41, 3, -2))
sketch4.addConstraint(Sketcher.Constraint("Symmetric", 51, 3, 57, 3, -2))
sketch4.addConstraint(Sketcher.Constraint("Horizontal", 39, 3, 41, 3))
sketch4.addConstraint(Sketcher.Constraint("Horizontal", 37, 3, 43, 3))
sketch4.addConstraint(Sketcher.Constraint("Horizontal", 39, 3, 47, 3))
sketch4.addConstraint(Sketcher.Constraint("Horizontal", 55, 3, 57, 3))
sketch4.addConstraint(Sketcher.Constraint("Horizontal", 53, 3, 59, 3))
sketch4.addConstraint(Sketcher.Constraint("Horizontal", 55, 3, 63, 3))
sketch4.addConstraint(Sketcher.Constraint("Vertical", 1, 3, 2, 3))
sketch4.addConstraint(Sketcher.Constraint("Vertical", 3, 3, 4, 3))
sketch4.addConstraint(Sketcher.Constraint("Vertical", 15, 3, 28, 3))
sketch4.addConstraint(Sketcher.Constraint("Vertical", 39, 3, 49, 3))
sketch4.addConstraint(Sketcher.Constraint("Equal", 46, 48))
sketch4.addConstraint(Sketcher.Constraint("Diameter", 0, 4.0))
sketch4.addConstraint(Sketcher.Constraint("Diameter", 1, 3.0))
sketch4.addConstraint(Sketcher.Constraint("Radius", 33, 1.0))
sketch4.addConstraint(Sketcher.Constraint("Diameter", 13, 4.5))
sketch4.addConstraint(Sketcher.Constraint("Radius", 37, 0.55))
sketch4.addConstraint(Sketcher.Constraint("DistanceX", 0, 3, -1, 1, 15.0))
sketch4.addConstraint(Sketcher.Constraint("DistanceY", 0, 3, -1, 1, 15.0))
sketch4.addConstraint(Sketcher.Constraint("DistanceY", 2, 3, -1, 1, 10.0))
sketch4.addConstraint(Sketcher.Constraint("DistanceY", 32, 2, 32, 1, 3.15))
sketch4.addConstraint(Sketcher.Constraint("DistanceY", 4, 3, -1, 1, 2.5))
sketch4.addConstraint(Sketcher.Constraint("DistanceX", 12, 3, -1, 1, 3.5))
sketch4.addConstraint(Sketcher.Constraint("Diameter", 12, 5.789793))
sketch4.addConstraint(Sketcher.Constraint("DistanceY", 12, 3, -1, 1, 18.796))
sketch4.addConstraint(Sketcher.Constraint("DistanceY", 28, 3, -1, 1, 1.397))
sketch4.addConstraint(Sketcher.Constraint("DistanceX", 33, 3, -1, 1, 4.847))
sketch4.addConstraint(Sketcher.Constraint("DistanceY", -1, 1, 33, 3, 9.721))
sketch4.addConstraint(Sketcher.Constraint("DistanceY", -1, 1, 49, 3, 20.999))
pad2 = body.newObject("PartDesign::Pad", "Pad001")
pad2.Profile = sketch4
pad2.Length = 1.8
pad2.Midplane = True

doc.recompute()
